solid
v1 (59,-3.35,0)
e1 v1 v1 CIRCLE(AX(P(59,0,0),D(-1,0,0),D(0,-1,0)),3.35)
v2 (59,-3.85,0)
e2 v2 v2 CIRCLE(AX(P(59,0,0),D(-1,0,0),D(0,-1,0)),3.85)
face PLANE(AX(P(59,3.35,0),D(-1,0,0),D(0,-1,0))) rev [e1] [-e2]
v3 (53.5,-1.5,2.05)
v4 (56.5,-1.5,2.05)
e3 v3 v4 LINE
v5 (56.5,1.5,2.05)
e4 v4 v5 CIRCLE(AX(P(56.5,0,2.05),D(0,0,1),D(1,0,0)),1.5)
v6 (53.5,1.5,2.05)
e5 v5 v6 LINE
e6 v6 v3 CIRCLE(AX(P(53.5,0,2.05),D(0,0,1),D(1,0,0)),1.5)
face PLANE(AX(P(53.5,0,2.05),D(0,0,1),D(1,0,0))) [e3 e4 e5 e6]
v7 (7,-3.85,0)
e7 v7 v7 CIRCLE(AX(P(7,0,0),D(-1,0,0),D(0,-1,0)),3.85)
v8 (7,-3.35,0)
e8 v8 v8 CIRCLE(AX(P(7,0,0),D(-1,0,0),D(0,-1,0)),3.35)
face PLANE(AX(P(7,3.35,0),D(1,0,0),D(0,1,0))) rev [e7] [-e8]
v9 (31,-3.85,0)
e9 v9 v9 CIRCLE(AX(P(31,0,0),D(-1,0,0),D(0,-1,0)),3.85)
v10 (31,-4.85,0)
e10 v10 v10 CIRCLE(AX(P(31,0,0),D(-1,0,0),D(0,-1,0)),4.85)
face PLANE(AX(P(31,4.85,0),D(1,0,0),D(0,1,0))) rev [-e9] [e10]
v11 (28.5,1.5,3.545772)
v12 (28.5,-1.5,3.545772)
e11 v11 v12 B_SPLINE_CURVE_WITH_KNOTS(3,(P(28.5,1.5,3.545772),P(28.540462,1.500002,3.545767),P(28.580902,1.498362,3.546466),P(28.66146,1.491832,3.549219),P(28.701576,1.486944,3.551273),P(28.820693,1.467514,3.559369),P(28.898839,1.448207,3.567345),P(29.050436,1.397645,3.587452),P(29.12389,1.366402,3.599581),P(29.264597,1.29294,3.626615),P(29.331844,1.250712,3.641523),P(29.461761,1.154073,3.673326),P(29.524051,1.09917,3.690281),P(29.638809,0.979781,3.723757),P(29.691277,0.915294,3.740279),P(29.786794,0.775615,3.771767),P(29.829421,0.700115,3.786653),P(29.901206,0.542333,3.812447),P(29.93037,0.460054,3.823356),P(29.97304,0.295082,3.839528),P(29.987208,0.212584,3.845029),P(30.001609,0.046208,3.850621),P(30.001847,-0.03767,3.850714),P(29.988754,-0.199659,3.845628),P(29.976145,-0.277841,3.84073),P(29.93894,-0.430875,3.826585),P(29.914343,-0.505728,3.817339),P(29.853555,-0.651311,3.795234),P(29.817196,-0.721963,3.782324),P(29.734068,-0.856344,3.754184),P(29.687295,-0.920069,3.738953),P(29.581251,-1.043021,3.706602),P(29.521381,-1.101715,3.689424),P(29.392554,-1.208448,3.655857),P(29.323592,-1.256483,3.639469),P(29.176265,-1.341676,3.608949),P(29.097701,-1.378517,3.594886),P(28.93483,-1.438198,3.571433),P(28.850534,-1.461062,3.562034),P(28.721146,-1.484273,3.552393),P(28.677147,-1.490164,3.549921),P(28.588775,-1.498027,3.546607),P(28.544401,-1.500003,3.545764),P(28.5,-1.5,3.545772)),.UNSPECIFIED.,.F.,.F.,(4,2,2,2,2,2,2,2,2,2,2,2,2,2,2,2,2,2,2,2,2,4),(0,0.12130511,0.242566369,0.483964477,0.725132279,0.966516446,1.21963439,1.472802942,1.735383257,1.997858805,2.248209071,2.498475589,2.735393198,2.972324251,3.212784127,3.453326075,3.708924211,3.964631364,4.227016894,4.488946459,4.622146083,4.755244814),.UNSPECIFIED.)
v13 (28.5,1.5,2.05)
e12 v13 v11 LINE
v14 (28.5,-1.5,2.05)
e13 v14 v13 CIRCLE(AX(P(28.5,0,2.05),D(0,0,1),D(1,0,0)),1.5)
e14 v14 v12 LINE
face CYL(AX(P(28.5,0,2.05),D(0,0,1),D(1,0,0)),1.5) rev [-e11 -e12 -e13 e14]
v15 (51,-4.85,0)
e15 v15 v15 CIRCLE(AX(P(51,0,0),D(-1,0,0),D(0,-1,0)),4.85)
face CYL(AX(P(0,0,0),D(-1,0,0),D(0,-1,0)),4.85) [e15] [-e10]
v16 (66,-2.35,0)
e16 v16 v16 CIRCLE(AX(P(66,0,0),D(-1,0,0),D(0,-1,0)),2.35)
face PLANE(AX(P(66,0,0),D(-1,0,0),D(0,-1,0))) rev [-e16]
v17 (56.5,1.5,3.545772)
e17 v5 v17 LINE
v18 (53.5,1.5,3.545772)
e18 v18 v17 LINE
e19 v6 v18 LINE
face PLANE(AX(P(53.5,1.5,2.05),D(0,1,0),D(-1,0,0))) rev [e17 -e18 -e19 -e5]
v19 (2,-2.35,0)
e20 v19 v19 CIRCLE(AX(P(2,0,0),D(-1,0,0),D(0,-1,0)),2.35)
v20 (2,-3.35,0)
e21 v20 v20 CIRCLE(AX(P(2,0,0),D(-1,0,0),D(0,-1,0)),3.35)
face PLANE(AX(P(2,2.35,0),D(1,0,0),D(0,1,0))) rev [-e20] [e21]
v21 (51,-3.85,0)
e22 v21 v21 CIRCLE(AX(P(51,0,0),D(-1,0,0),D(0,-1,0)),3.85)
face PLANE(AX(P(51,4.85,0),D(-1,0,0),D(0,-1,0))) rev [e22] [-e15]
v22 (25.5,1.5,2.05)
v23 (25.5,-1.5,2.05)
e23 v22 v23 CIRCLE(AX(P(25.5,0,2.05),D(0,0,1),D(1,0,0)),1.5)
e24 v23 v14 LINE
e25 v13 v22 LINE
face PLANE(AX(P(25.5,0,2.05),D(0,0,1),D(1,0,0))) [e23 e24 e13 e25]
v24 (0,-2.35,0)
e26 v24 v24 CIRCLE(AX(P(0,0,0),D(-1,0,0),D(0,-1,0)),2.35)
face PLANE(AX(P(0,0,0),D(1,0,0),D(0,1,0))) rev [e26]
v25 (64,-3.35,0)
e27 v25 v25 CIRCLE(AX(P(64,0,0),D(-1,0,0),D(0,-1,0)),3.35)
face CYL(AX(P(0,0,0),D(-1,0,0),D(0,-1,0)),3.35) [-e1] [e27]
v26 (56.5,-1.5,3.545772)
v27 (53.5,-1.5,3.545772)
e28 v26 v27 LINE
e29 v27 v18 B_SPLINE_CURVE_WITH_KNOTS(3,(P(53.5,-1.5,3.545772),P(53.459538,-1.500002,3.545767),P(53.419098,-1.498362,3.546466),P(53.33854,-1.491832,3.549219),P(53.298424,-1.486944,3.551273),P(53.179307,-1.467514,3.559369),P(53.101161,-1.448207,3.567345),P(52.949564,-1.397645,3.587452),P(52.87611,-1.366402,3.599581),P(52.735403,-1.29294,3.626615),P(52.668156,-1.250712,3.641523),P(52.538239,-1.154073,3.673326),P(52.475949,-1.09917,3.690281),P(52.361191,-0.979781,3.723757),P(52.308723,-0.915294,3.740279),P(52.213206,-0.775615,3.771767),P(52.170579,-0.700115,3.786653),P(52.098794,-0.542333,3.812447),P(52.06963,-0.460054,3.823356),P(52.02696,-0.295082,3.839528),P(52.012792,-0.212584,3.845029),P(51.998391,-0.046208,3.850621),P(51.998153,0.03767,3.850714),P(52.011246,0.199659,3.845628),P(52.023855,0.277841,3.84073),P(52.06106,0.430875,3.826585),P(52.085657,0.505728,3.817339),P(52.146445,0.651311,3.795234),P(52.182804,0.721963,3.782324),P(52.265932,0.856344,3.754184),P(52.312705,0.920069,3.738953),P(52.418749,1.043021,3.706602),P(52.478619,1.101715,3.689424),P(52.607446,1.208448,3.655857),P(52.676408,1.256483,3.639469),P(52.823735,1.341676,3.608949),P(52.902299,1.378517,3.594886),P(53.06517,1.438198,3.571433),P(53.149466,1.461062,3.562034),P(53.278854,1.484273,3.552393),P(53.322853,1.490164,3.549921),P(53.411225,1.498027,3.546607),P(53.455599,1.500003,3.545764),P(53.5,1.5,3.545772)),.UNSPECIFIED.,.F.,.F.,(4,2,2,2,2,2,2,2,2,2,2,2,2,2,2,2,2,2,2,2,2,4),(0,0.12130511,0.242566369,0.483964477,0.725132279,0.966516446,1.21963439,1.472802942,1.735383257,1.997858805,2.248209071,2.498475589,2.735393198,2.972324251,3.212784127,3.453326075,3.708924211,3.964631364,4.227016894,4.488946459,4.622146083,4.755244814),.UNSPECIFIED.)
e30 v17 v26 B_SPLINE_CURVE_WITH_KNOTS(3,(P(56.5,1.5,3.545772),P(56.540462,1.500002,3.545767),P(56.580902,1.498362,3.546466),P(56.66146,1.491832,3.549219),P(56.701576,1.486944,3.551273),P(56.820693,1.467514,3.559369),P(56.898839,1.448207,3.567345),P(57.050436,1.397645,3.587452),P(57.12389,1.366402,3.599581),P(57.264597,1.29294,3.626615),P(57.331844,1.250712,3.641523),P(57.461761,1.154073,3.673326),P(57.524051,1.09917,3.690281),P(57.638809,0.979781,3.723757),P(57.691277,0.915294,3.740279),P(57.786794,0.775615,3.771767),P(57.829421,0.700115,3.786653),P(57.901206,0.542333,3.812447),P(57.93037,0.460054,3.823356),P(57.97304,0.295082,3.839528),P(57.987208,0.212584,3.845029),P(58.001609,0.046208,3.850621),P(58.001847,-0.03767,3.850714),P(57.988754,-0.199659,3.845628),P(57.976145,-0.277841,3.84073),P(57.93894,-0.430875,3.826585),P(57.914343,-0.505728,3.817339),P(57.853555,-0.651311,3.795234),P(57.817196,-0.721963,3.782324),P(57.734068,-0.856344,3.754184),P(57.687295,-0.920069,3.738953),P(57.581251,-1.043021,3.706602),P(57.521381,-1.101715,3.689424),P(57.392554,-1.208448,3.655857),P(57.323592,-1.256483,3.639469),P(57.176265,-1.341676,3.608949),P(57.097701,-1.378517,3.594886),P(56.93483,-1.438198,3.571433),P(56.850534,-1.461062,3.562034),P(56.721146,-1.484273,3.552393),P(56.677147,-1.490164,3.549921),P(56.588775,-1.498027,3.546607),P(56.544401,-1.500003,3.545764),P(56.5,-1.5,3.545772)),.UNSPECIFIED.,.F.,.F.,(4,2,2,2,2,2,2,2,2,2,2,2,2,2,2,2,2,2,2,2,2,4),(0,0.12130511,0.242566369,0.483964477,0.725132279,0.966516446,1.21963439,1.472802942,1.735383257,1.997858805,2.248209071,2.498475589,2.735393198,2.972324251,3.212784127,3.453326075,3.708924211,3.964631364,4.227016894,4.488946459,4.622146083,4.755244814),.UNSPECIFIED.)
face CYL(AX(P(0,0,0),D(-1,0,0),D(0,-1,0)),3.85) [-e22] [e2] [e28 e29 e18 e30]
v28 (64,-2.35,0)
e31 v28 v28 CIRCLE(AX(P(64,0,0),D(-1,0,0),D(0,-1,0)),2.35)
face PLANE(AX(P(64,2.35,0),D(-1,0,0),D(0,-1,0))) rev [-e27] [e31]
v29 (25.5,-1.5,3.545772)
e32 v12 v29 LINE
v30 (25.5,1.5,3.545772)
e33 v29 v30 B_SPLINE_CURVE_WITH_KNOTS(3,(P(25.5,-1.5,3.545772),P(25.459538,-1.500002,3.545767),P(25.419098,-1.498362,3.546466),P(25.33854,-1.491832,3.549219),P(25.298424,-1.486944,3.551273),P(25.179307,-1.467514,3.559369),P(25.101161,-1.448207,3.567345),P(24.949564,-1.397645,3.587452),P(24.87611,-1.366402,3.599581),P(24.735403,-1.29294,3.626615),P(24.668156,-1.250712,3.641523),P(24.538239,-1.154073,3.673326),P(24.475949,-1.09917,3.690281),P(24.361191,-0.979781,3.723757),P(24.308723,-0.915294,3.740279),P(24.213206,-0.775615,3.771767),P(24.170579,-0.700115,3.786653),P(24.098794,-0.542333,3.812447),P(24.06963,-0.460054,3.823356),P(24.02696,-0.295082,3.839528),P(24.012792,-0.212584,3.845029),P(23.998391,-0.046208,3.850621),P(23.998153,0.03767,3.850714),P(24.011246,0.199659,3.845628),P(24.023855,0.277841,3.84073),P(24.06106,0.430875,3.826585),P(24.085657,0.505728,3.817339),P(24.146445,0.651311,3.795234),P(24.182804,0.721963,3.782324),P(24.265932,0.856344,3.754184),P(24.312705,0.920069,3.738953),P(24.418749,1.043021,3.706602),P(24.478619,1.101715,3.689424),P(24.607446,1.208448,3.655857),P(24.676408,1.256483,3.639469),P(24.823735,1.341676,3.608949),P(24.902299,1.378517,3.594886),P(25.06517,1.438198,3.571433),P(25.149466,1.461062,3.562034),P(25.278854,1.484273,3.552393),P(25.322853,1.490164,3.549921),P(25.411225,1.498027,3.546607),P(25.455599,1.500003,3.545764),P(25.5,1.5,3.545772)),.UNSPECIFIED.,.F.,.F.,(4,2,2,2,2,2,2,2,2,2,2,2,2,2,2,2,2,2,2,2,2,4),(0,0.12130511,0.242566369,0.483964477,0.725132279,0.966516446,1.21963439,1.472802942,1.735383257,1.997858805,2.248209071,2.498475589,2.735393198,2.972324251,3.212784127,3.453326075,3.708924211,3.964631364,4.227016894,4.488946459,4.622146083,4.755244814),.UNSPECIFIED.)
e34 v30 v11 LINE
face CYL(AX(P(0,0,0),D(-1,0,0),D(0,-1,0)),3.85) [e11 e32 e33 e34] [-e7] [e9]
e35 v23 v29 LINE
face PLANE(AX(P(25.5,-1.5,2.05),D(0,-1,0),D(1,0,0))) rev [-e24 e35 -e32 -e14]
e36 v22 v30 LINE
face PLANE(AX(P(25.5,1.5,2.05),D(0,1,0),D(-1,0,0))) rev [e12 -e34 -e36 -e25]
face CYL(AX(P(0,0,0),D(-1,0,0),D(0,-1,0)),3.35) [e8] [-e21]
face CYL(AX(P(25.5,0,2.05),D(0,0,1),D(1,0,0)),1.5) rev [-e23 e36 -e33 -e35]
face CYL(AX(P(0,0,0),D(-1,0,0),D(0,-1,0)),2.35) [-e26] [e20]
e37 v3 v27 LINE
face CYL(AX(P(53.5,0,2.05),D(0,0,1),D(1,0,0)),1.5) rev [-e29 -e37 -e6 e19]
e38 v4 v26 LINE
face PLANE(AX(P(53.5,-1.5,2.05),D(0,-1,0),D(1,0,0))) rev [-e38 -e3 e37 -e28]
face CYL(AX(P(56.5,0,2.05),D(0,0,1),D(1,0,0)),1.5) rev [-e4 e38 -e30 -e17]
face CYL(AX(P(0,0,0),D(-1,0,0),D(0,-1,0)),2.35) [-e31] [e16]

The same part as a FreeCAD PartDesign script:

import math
import FreeCAD as App
import Part
import Sketcher
from FreeCAD import Vector
Q = App.Units.Quantity


def add_polygon(sketch, points):
    """Adds a closed chain of lines whose ends are joined by coincident constraints."""
    first, n = sketch.GeometryCount, len(points)
    for a, b in zip(points, points[1:] + points[:1]):
        sketch.addGeometry(Part.LineSegment(App.Vector(*a, 0), App.Vector(*b, 0)), False)
    for i in range(n):
        sketch.addConstraint(Sketcher.Constraint("Coincident", first + i, 2, first + (i + 1) % n, 1))

doc = App.newDocument("Part")
body = doc.addObject("PartDesign::Body", "Body")

# Sketch on XY plane
sketch1 = body.newObject("Sketcher::SketchObject", "Sketch")
sketch1.AttachmentSupport = (doc.getObject("XY_Plane"), [""])
sketch1.MapMode = "FlatFace"
add_polygon(sketch1, [(0, 2.35), (0, 0), (66, 0), (66, 2.35), (64, 2.35), (64, 3.35), (59, 3.35), (59, 3.85), (51, 3.85), (51, 4.85), (31, 4.85), (31, 3.85), (7, 3.85), (7, 3.35), (2, 3.35), (2, 2.35)])  # lines 0-15
sketch1.addConstraint([
    Sketcher.Constraint("Vertical", 0),
    Sketcher.Constraint("Horizontal", 1),
    Sketcher.Constraint("Vertical", 2),
    Sketcher.Constraint("Horizontal", 3),
    Sketcher.Constraint("Vertical", 4),
    Sketcher.Constraint("Horizontal", 5),
    Sketcher.Constraint("Vertical", 6),
    Sketcher.Constraint("Horizontal", 7),
    Sketcher.Constraint("Vertical", 8),
    Sketcher.Constraint("Horizontal", 9),
    Sketcher.Constraint("Vertical", 10),
    Sketcher.Constraint("Horizontal", 11),
    Sketcher.Constraint("Vertical", 12),
    Sketcher.Constraint("Horizontal", 13),
    Sketcher.Constraint("Vertical", 14),
    Sketcher.Constraint("Horizontal", 15),
    Sketcher.Constraint("Coincident", 0, 2, -1, 1),
    Sketcher.Constraint("Horizontal", 7, 2, 10, 2),
    Sketcher.Constraint("Horizontal", 5, 2, 12, 2),
    Sketcher.Constraint("Horizontal", 3, 2, 14, 2),
    Sketcher.Constraint("Equal", 5, 13),
    Sketcher.Constraint("Equal", 3, 15),
    Sketcher.Constraint("Equal", 4, 8),
    Sketcher.Constraint("DistanceX", 1, 1, 1, 2, Q("66 mm")),
    Sketcher.Constraint("DistanceX", 3, 2, 3, 1, Q("2 mm")),
    Sketcher.Constraint("DistanceX", 5, 2, 5, 1, Q("5 mm")),
    Sketcher.Constraint("DistanceX", 7, 2, 7, 1, Q("8 mm")),
    Sketcher.Constraint("DistanceX", 9, 2, 9, 1, Q("20 mm")),
    Sketcher.Constraint("DistanceY", 4, 1, 4, 2, Q("1 mm")),
    Sketcher.Constraint("DistanceY", 6, 1, 6, 2, Q("0.5 mm")),
    Sketcher.Constraint("DistanceY", 0, 2, 0, 1, Q("2.35 mm")),
])
revolution = body.newObject("PartDesign::Revolution", "Revolution")
revolution.Profile = sketch1
revolution.ReferenceAxis = (sketch1, ["H_Axis"])
revolution.Angle = 360

# Sketch on XY plane
sketch2 = body.newObject("Sketcher::SketchObject", "Sketch001")
sketch2.AttachmentSupport = (doc.getObject("XY_Plane"), [""])
sketch2.MapMode = "FlatFace"
sketch2.AttachmentOffset = App.Placement(Vector(0, 0, 3.85), App.Rotation())
sketch2.addGeometry([
    Part.LineSegment(Vector(28.5, 1.5, 0), Vector(25.5, 1.5, 0)),  # 0
    Part.ArcOfCircle(Part.Circle(Vector(25.5, 0, 0), Vector(0, 0, 1), 1.5), math.radians(90), math.radians(270)),  # 1
    Part.LineSegment(Vector(25.5, -1.5, 0), Vector(28.5, -1.5, 0)),  # 2
    Part.ArcOfCircle(Part.Circle(Vector(28.5, 0, 0), Vector(0, 0, 1), 1.5), math.radians(-90), math.radians(90)),  # 3
    Part.LineSegment(Vector(56.5, 1.5, 0), Vector(53.5, 1.5, 0)),  # 4
    Part.ArcOfCircle(Part.Circle(Vector(53.5, 0, 0), Vector(0, 0, 1), 1.5), math.radians(90), math.radians(270)),  # 5
    Part.LineSegment(Vector(53.5, -1.5, 0), Vector(56.5, -1.5, 0)),  # 6
    Part.ArcOfCircle(Part.Circle(Vector(56.5, 0, 0), Vector(0, 0, 1), 1.5), math.radians(-90), math.radians(90)),  # 7
], False)
sketch2.addConstraint([
    Sketcher.Constraint("Tangent", 0, 2, 1, 1),
    Sketcher.Constraint("Tangent", 1, 2, 2, 1),
    Sketcher.Constraint("Tangent", 2, 2, 3, 1),
    Sketcher.Constraint("Tangent", 3, 2, 0, 1),
    Sketcher.Constraint("Tangent", 4, 2, 5, 1),
    Sketcher.Constraint("Tangent", 5, 2, 6, 1),
    Sketcher.Constraint("Tangent", 6, 2, 7, 1),
    Sketcher.Constraint("Tangent", 7, 2, 4, 1),
    Sketcher.Constraint("Horizontal", 0),
    Sketcher.Constraint("Horizontal", 2),
    Sketcher.Constraint("Horizontal", 4),
    Sketcher.Constraint("Horizontal", 6),
    Sketcher.Constraint("Equal", 3, 5),
    Sketcher.Constraint("PointOnObject", 1, 3, -1),
    Sketcher.Constraint("PointOnObject", 5, 3, -1),
    Sketcher.Constraint("Equal", 2, 4),
    Sketcher.Constraint("Radius", 1, Q("1.5 mm")),
    Sketcher.Constraint("DistanceX", 0, 2, 0, 1, Q("3 mm")),
    Sketcher.Constraint("DistanceX", 3, 3, 5, 3, Q("25 mm")),
    Sketcher.Constraint("DistanceX", -1, 1, 1, 3, Q("25.5 mm")),
])
pocket1 = body.newObject("PartDesign::Pocket", "Pocket")
pocket1.Profile = sketch2
pocket1.Length = 1.8

doc.recompute()
